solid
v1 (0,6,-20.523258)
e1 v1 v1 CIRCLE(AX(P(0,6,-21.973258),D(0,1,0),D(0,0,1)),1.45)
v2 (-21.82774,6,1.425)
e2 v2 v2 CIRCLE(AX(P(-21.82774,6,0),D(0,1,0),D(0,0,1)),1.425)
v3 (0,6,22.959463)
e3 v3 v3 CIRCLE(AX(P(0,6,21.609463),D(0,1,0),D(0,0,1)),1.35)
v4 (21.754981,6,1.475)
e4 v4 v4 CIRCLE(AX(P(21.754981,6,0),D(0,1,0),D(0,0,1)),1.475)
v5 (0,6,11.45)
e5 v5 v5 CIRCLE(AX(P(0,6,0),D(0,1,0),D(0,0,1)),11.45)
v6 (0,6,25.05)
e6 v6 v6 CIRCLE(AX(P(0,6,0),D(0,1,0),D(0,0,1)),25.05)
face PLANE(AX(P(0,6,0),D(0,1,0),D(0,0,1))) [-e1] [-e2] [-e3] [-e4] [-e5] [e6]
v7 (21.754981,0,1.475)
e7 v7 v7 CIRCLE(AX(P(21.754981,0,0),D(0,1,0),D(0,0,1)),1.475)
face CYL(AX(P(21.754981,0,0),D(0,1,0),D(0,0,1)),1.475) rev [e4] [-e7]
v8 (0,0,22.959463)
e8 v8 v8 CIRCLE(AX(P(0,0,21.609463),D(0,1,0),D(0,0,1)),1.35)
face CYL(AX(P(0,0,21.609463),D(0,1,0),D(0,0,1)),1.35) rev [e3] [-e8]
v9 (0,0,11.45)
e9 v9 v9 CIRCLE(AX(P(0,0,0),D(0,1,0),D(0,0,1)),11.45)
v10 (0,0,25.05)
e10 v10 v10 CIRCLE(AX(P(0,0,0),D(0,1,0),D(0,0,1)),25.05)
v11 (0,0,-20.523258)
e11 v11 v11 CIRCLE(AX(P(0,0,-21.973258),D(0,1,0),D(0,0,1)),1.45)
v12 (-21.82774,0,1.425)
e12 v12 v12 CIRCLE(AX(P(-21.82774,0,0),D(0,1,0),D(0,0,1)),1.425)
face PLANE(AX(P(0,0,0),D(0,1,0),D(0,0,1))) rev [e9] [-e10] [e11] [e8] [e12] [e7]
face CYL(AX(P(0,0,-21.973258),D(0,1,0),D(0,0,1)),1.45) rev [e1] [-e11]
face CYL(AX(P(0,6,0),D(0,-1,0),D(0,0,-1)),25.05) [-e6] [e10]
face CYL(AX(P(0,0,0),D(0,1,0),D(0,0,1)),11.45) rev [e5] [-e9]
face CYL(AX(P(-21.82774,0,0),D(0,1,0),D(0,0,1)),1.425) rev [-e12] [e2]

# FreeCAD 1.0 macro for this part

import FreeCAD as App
import Part
import Sketcher
from FreeCAD import Vector

doc = App.newDocument("Part")
body = doc.addObject("PartDesign::Body", "Body")

sketch1 = body.newObject("Sketcher::SketchObject", "Sketch")
sketch1.AttachmentSupport = (doc.getObject("XZ_Plane"), [""])
sketch1.MapMode = "FlatFace"
sketch1.addGeometry(Part.Circle(Vector(0, 0, 0), Vector(0, 0, 1), 25), False)
sketch1.addConstraint(Sketcher.Constraint("Coincident", 0, 3, -1, 1))
sketch1.addConstraint(Sketcher.Constraint("Diameter", 0, 50.1))
pad1 = body.newObject("PartDesign::Pad", "Pad")
pad1.Profile = sketch1
pad1.Length = 6
pad1.Reversed = True

sketch2 = body.newObject("Sketcher::SketchObject", "Sketch001")
sketch2.AttachmentSupport = (doc.getObject("XZ_Plane"), [""])
sketch2.MapMode = "FlatFace"
sketch2.AttachmentOffset = App.Placement(Vector(0, 0, -6), App.Rotation())
sketch2.addGeometry(Part.Circle(Vector(21.8, 0, 0), Vector(0, 0, 1), 1.5), False)
sketch2.addGeometry(Part.Circle(Vector(0, -22, 0), Vector(0, 0, 1), 1.4), False)
sketch2.addGeometry(Part.Circle(Vector(-21.8, 0, 0), Vector(0, 0, 1), 1.4), False)
sketch2.addGeometry(Part.Circle(Vector(0, 21.6, 0), Vector(0, 0, 1), 1.4), False)
sketch2.addGeometry(Part.Circle(Vector(0, 0, 0), Vector(0, 0, 1), 11.4), False)
sketch2.addConstraint(Sketcher.Constraint("Coincident", 4, 3, -1, 1))
sketch2.addConstraint(Sketcher.Constraint("PointOnObject", 0, 3, -1))
sketch2.addConstraint(Sketcher.Constraint("PointOnObject", 1, 3, -2))
sketch2.addConstraint(Sketcher.Constraint("PointOnObject", 2, 3, -1))
sketch2.addConstraint(Sketcher.Constraint("PointOnObject", 3, 3, -2))
sketch2.addConstraint(Sketcher.Constraint("Diameter", 1, 2.9))
sketch2.addConstraint(Sketcher.Constraint("Diameter", 3, 2.7))
sketch2.addConstraint(Sketcher.Constraint("Diameter", 4, 22.9))
sketch2.addConstraint(Sketcher.Constraint("Diameter", 0, 2.95))
sketch2.addConstraint(Sketcher.Constraint("Diameter", 2, 2.85))
sketch2.addConstraint(Sketcher.Constraint("DistanceX", -1, 1, 0, 3, 21.754981))
sketch2.addConstraint(Sketcher.Constraint("DistanceY", 1, 3, -1, 1, 21.973258))
sketch2.addConstraint(Sketcher.Constraint("DistanceX", 2, 3, -1, 1, 21.82774))
sketch2.addConstraint(Sketcher.Constraint("DistanceY", 1, 3, 3, 3, 43.582721))
pocket1 = body.newObject("PartDesign::Pocket", "Pocket")
pocket1.Profile = sketch2
pocket1.Type = "ThroughAll"
pocket1.Reversed = True

doc.recompute()
